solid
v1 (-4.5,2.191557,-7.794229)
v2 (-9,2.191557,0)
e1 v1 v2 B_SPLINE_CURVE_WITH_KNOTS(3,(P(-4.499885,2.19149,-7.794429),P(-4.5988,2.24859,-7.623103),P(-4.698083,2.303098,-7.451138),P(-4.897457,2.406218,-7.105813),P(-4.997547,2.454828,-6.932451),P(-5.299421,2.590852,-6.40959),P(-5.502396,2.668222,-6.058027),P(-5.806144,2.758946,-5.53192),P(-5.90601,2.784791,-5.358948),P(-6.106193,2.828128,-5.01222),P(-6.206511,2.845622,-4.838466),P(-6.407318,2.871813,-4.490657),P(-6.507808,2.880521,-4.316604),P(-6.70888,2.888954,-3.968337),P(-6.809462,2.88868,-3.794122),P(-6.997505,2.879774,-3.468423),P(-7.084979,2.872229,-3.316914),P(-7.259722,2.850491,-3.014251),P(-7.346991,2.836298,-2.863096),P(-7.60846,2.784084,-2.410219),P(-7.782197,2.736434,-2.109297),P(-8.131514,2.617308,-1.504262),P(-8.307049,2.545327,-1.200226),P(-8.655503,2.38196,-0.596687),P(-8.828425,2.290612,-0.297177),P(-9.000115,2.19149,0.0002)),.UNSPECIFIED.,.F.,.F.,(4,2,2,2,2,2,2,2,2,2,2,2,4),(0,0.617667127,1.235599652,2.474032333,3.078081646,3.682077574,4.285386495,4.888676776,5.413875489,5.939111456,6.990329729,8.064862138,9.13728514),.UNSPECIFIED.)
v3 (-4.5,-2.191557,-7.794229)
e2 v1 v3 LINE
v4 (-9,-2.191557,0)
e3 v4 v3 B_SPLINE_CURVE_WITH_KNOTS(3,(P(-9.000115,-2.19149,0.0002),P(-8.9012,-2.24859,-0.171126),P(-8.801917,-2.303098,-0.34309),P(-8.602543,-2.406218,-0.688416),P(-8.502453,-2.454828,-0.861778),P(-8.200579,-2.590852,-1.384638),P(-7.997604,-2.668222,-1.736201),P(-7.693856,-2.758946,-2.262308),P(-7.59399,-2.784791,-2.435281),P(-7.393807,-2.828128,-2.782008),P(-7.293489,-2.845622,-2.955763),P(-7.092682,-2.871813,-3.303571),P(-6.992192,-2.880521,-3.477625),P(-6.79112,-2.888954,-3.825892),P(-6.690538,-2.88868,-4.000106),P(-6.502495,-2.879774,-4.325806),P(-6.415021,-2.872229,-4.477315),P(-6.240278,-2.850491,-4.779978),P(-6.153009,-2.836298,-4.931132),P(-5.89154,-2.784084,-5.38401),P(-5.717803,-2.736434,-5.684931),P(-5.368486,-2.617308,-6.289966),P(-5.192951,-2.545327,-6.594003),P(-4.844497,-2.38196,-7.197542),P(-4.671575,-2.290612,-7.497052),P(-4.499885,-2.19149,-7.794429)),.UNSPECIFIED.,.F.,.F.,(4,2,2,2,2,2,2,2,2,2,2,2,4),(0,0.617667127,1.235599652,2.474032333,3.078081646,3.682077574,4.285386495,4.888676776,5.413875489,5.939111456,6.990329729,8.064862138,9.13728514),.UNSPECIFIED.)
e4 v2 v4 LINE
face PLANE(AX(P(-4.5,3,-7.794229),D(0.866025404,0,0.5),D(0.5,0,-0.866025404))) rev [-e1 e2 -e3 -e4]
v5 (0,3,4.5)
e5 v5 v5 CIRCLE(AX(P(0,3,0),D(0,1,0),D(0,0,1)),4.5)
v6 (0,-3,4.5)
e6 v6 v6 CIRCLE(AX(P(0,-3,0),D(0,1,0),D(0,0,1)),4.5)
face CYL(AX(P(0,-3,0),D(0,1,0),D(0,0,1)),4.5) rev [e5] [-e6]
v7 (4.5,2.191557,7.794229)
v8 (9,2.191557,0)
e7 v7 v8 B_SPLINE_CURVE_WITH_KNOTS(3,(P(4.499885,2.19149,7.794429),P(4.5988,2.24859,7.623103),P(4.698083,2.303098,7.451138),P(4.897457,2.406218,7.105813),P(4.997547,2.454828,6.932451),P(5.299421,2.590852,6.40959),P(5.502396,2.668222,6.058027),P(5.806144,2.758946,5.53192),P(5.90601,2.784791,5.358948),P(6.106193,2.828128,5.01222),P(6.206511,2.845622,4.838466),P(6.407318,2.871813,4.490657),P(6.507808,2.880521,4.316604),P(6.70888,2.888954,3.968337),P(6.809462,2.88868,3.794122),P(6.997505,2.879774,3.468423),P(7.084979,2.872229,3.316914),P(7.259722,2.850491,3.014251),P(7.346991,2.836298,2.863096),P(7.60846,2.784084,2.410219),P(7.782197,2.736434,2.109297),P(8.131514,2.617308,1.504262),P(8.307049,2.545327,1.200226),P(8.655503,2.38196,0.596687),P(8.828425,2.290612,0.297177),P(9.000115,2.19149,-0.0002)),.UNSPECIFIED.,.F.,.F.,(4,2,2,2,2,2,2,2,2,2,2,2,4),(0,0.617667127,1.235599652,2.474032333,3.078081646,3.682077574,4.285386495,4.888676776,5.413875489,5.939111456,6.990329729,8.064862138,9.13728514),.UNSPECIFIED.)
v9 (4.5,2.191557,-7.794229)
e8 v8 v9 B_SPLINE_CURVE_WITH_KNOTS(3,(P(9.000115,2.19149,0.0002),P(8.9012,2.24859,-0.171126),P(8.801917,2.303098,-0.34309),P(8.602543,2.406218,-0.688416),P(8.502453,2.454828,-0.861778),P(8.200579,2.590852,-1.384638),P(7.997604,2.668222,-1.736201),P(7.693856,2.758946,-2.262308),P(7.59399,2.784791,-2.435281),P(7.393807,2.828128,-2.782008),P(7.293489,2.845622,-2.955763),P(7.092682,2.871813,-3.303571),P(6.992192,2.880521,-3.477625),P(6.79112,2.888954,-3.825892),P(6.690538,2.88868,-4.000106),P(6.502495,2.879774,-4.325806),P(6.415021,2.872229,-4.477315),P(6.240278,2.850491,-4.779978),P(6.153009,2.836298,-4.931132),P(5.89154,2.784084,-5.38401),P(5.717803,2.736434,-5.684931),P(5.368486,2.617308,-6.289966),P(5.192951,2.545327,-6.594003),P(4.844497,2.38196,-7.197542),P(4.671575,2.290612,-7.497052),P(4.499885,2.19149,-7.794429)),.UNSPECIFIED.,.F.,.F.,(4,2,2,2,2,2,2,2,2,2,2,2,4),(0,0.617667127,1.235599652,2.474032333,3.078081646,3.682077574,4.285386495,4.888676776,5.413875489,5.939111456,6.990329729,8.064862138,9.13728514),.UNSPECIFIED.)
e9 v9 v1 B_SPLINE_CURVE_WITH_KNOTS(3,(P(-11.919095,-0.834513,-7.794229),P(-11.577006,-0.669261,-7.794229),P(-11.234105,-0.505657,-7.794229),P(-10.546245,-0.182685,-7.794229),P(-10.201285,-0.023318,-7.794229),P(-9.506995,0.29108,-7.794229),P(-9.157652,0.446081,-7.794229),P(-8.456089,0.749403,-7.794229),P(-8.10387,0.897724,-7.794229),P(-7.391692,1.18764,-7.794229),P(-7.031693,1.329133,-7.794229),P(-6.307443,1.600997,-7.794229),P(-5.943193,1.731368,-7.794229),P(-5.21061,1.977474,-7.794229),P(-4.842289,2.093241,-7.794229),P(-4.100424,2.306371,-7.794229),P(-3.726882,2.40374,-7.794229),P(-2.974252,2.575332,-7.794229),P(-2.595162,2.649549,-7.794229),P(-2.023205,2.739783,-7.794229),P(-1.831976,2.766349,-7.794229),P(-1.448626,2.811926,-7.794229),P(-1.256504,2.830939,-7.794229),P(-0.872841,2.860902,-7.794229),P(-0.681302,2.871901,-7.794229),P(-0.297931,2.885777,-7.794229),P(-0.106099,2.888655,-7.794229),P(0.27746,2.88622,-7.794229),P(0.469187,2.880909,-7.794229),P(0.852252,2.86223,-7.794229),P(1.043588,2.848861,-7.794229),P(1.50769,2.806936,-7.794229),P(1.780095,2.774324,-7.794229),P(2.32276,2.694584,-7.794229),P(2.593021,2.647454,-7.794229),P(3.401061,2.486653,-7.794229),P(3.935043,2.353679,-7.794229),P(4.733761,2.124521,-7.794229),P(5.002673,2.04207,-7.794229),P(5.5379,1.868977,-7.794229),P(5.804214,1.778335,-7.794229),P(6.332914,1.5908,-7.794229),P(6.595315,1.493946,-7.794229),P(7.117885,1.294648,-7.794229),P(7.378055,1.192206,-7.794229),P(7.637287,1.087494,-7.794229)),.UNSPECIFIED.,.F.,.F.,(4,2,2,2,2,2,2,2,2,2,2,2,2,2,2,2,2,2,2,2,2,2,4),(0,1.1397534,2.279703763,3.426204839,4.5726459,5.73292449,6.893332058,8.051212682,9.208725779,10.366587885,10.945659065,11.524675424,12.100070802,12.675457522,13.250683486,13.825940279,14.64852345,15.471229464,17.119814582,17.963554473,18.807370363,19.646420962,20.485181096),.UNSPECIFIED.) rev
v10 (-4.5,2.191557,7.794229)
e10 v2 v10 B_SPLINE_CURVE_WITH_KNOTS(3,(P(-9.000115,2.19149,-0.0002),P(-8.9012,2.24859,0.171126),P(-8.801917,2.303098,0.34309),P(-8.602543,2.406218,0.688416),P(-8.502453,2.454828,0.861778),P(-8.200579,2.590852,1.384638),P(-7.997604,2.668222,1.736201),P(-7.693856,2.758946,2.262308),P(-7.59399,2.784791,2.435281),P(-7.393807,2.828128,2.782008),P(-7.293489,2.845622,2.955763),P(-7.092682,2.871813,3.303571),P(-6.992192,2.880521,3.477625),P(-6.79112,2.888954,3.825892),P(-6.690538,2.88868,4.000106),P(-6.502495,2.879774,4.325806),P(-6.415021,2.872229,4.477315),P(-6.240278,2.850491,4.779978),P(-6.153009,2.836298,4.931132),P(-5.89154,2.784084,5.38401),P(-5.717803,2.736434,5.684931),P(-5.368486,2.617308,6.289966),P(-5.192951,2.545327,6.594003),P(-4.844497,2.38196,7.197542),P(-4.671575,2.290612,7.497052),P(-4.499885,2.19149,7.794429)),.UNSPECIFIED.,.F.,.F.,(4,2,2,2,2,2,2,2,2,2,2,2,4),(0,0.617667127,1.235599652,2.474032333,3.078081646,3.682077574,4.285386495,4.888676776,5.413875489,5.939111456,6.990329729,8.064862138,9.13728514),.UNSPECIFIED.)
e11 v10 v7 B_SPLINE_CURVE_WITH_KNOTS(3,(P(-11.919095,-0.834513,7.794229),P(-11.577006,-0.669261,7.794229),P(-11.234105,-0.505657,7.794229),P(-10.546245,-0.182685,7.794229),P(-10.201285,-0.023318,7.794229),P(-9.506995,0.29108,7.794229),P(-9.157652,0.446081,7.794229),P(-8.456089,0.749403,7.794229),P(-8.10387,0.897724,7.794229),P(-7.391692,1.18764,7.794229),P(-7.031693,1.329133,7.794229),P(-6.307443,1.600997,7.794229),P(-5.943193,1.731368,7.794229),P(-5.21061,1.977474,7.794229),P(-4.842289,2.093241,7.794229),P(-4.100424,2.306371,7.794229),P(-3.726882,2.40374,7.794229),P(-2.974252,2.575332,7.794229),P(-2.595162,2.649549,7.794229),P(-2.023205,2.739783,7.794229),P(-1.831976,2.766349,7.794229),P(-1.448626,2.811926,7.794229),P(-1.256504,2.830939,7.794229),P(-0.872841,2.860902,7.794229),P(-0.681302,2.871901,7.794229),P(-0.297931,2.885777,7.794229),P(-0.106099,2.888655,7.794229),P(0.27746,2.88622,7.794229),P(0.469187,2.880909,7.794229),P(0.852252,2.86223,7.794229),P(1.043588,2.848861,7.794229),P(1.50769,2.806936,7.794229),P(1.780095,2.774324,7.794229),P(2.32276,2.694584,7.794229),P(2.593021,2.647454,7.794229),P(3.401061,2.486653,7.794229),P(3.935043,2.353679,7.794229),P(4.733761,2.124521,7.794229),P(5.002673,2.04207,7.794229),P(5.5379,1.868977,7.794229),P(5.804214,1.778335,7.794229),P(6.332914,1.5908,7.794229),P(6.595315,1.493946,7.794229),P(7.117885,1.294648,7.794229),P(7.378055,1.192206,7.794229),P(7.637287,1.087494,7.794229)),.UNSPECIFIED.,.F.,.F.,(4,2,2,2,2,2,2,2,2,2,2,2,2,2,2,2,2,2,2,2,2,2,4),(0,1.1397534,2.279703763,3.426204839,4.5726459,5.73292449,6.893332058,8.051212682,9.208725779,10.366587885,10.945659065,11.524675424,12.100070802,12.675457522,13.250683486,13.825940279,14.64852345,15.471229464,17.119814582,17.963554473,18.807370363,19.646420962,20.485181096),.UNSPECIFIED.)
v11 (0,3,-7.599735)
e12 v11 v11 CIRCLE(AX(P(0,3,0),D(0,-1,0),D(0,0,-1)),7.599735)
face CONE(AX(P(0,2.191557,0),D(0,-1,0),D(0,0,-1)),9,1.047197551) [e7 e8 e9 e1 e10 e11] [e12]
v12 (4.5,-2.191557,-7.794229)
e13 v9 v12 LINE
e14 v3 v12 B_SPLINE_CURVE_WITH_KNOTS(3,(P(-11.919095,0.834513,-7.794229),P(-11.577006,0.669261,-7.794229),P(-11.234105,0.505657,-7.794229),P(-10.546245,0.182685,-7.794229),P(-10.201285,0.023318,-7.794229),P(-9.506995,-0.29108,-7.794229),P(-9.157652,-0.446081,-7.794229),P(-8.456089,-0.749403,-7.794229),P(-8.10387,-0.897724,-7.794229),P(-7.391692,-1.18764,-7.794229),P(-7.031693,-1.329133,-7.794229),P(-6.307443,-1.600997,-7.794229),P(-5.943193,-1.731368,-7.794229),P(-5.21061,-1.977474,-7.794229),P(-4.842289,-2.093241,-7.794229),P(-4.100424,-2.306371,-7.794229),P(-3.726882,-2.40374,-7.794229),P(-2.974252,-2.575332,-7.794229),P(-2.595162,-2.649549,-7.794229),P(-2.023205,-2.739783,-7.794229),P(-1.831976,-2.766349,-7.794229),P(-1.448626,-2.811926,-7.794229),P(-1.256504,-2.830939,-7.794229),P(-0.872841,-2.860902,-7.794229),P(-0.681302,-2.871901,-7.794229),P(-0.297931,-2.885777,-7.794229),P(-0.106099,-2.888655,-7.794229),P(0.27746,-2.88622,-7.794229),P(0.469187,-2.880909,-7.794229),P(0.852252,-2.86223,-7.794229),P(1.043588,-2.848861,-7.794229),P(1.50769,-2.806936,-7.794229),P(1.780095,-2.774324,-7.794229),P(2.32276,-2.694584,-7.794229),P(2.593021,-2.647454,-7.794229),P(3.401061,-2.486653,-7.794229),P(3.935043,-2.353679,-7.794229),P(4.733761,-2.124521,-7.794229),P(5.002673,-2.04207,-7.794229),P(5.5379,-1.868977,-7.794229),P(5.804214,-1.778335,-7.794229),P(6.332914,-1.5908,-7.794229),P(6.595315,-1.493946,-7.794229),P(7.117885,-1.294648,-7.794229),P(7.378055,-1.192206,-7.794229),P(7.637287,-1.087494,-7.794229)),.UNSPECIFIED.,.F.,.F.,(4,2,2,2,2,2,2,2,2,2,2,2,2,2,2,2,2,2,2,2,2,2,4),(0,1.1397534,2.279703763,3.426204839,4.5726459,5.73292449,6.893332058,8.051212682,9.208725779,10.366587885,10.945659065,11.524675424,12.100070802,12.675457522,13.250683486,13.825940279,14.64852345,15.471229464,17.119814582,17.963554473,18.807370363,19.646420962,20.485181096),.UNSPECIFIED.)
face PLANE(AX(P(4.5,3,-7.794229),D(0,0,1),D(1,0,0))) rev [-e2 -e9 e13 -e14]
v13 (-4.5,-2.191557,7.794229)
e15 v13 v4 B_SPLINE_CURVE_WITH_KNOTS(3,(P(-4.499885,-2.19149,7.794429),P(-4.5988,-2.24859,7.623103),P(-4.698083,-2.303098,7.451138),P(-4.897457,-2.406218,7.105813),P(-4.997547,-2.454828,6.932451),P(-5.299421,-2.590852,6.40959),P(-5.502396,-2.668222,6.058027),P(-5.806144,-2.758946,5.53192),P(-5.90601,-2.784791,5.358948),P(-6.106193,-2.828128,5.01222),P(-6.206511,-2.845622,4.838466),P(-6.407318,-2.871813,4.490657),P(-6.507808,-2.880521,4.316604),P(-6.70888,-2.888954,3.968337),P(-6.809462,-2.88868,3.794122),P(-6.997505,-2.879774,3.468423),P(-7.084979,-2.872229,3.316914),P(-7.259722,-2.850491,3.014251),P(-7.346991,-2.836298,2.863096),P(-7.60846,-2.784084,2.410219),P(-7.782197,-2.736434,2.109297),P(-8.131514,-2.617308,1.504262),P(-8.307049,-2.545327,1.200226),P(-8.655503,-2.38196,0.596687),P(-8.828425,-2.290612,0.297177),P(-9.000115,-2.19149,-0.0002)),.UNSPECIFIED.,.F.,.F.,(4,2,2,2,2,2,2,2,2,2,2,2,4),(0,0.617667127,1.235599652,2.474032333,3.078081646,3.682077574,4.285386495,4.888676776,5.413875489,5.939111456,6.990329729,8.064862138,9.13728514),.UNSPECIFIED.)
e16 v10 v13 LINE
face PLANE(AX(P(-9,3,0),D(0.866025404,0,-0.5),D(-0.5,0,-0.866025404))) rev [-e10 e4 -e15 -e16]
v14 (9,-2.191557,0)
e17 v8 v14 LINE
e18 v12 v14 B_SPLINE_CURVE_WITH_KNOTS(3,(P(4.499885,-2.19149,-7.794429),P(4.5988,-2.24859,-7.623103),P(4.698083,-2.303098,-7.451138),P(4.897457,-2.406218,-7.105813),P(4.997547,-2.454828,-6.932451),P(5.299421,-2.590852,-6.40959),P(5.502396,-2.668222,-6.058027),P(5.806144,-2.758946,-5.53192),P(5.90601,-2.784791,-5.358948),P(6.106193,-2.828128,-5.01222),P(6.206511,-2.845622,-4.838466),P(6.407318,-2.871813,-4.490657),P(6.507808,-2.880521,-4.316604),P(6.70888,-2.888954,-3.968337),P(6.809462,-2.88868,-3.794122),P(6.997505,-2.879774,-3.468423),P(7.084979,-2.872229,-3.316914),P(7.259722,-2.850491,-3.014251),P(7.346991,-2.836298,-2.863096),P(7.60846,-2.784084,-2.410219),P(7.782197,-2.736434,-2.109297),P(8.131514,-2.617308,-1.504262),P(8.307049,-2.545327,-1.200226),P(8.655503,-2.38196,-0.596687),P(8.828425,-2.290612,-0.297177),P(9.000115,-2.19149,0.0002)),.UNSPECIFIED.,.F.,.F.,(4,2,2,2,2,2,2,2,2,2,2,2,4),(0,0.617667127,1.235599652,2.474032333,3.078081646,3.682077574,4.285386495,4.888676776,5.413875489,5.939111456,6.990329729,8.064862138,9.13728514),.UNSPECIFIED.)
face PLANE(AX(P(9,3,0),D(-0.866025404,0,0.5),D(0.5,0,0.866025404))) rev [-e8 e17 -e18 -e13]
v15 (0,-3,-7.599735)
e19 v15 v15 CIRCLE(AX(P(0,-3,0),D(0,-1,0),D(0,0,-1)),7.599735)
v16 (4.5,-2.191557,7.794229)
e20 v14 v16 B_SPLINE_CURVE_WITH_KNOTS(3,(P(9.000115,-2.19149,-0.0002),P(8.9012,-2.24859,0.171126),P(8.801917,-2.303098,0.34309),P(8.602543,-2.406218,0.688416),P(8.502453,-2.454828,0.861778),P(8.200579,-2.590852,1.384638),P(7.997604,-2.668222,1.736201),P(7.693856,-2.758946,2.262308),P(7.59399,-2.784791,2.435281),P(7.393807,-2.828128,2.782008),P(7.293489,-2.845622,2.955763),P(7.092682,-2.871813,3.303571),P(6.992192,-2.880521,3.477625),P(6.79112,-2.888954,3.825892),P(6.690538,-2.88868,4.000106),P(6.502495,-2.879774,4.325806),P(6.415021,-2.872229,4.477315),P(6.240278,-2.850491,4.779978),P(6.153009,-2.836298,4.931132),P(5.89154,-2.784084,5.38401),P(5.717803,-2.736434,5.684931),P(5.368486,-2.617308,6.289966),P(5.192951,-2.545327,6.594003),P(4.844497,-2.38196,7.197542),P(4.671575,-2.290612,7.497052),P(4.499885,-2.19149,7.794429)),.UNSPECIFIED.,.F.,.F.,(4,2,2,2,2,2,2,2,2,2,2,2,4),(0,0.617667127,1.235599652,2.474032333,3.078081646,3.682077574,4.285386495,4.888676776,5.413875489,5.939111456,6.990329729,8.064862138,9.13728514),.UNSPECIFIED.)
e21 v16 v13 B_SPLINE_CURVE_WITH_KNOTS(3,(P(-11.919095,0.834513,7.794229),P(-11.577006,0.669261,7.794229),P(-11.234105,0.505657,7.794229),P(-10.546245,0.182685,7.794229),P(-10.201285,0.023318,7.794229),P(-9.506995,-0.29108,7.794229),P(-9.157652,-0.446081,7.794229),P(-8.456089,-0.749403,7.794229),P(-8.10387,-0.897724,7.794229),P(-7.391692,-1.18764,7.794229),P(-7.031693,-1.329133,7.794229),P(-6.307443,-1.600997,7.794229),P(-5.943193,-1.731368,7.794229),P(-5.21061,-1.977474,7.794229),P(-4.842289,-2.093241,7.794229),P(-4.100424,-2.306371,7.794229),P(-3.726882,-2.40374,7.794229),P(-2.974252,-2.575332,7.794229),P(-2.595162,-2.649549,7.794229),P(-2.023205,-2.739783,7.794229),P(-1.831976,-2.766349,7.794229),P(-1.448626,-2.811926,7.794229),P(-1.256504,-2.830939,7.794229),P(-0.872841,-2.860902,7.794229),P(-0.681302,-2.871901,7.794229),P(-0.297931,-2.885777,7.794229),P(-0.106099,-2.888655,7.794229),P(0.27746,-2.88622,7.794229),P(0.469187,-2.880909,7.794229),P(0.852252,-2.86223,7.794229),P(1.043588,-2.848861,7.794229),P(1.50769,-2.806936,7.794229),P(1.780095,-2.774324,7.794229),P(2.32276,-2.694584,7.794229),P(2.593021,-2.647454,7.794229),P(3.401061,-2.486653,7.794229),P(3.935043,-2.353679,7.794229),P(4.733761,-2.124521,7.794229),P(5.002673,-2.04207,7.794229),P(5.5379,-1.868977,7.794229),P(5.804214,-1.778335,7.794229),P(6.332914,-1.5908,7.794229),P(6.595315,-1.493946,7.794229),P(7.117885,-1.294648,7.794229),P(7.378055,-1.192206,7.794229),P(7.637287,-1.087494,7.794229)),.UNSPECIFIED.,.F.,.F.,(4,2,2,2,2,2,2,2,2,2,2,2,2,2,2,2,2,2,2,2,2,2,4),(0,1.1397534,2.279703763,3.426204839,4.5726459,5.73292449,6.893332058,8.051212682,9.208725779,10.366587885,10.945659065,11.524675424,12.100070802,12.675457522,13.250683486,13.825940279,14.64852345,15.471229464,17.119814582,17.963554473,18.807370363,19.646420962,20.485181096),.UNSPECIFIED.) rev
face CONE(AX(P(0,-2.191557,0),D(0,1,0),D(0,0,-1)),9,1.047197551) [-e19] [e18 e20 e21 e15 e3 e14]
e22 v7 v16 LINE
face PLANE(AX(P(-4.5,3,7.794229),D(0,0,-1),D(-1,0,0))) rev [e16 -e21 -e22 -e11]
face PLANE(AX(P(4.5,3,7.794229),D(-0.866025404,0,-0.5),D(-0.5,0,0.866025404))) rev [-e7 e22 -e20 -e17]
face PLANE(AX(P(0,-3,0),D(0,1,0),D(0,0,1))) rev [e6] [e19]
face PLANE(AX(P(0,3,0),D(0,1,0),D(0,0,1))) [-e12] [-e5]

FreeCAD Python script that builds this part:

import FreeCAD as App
import Part
import Sketcher

V = App.Vector
Q = App.Units.Quantity

doc = App.newDocument("Part")
params = doc.addObject("Spreadsheet::Sheet", "Params")
for row, (alias, value) in enumerate([
    ("sketch1_width", "9 mm"),
    ("sketch1_length", "9 mm"),
    ("pad1_length", "6 mm"),
    ("sketch2_diameter", "9 mm"),
    ("groove_angle", "360 deg"),
], start=1):
    params.set(f"A{row}", alias)
    params.set(f"B{row}", "=" + value)
    params.setAlias(f"B{row}", alias)

body = doc.addObject("PartDesign::Body", "Body")

sketch1 = body.newObject("Sketcher::SketchObject", "Sketch")
sketch1.AttachmentSupport = (doc.getObject("XZ_Plane"), [""])
sketch1.MapMode = "FlatFace"
sketch1.addGeometry([
    Part.LineSegment(V(-4.5, -7.794229, 0), V(-9, 0, 0)),
    Part.LineSegment(V(-9, 0, 0), V(-4.5, 7.794229, 0)),
    Part.LineSegment(V(-4.5, 7.794229, 0), V(4.5, 7.794229, 0)),
    Part.LineSegment(V(4.5, 7.794229, 0), V(9, 0, 0)),
    Part.LineSegment(V(9, 0, 0), V(4.5, -7.794229, 0)),
    Part.LineSegment(V(4.5, -7.794229, 0), V(-4.5, -7.794229, 0)),
], False)
sketch1.addConstraint([
    Sketcher.Constraint("Coincident", 0, 2, 1, 1),
    Sketcher.Constraint("Coincident", 1, 2, 2, 1),
    Sketcher.Constraint("Coincident", 2, 2, 3, 1),
    Sketcher.Constraint("Coincident", 3, 2, 4, 1),
    Sketcher.Constraint("Coincident", 4, 2, 5, 1),
    Sketcher.Constraint("Coincident", 5, 2, 0, 1),
    Sketcher.Constraint("Horizontal", 2),
    Sketcher.Constraint("Horizontal", 5),
    Sketcher.Constraint("Symmetric", 0, 2, 3, 2, -1, 1),
    Sketcher.Constraint("Symmetric", 1, 2, 4, 2, -1, 1),
    Sketcher.Constraint("PointOnObject", 0, 2, -1),
    Sketcher.Constraint("Parallel", 0, 3),
    Sketcher.Constraint("Vertical", 2, 2, 4, 2),
    Sketcher.Constraint("DistanceX", 2, 1, 2, 2, 9.0),
    Sketcher.Constraint("Angle", 0, Q("120 deg")),
    Sketcher.Constraint("Distance", 0, 9.0),
])
sketch1.setExpression("Constraints[13]", "Params.sketch1_width")
sketch1.setExpression("Constraints[15]", "Params.sketch1_length")
pad1 = body.newObject("PartDesign::Pad", "Pad")
pad1.Profile = sketch1
pad1.setExpression("Length", "Params.pad1_length")
pad1.Midplane = True

sketch2 = body.newObject("Sketcher::SketchObject", "Sketch001")
sketch2.AttachmentSupport = (doc.getObject("XZ_Plane"), [""])
sketch2.MapMode = "FlatFace"
sketch2.AttachmentOffset = App.Placement(V(0, 0, -3), App.Rotation())
sketch2.addGeometry(Part.Circle(V(0, 0, 0), V(0, 0, 1), 4.5), False)
sketch2.addConstraint([
    Sketcher.Constraint("Coincident", 0, 3, -1, 1),
    Sketcher.Constraint("Diameter", 0, 9.0),
])
sketch2.setExpression("Constraints[1]", "Params.sketch2_diameter")
pocket1 = body.newObject("PartDesign::Pocket", "Pocket")
pocket1.Profile = sketch2
pocket1.Type = "ThroughAll"
pocket1.Reversed = True

sketch3 = body.newObject("Sketcher::SketchObject", "Sketch002")
sketch3.AttachmentSupport = (doc.getObject("XY_Plane"), [""])
sketch3.MapMode = "FlatFace"
sketch3.addGeometry([
    Part.LineSegment(V(-9, 3, 0), V(-9, 2.191557, 0)),
    Part.LineSegment(V(-9, 2.191557, 0), V(-7.599735, 3, 0)),
    Part.LineSegment(V(-7.599735, 3, 0), V(-9, 3, 0)),
], False)
sketch3.addConstraint([
    Sketcher.Constraint("Coincident", 0, 2, 1, 1),
    Sketcher.Constraint("Coincident", 1, 2, 2, 1),
    Sketcher.Constraint("Coincident", 2, 2, 0, 1),
    Sketcher.Constraint("Vertical", 0),
    Sketcher.Constraint("Horizontal", 2),
    Sketcher.Constraint("Angle", 1, Q("30 deg")),
    Sketcher.Constraint("DistanceX", 0, 2, -1, 1, 9.0),
    Sketcher.Constraint("DistanceY", -1, 1, 1, 2, 3.0),
    Sketcher.Constraint("DistanceX", 2, 2, 2, 1, 1.400265),
])
groove = body.newObject("PartDesign::Groove", "Groove")
groove.Profile = sketch3
groove.ReferenceAxis = (sketch3, ["V_Axis"])
groove.setExpression("Angle", "Params.groove_angle")
doc.recompute()

mirrored = body.newObject("PartDesign::Mirrored", "Mirrored")
mirrored.Originals = [groove]
mirrored.MirrorPlane = (doc.getObject("XZ_Plane"), [""])
body.Tip = mirrored

doc.recompute()
